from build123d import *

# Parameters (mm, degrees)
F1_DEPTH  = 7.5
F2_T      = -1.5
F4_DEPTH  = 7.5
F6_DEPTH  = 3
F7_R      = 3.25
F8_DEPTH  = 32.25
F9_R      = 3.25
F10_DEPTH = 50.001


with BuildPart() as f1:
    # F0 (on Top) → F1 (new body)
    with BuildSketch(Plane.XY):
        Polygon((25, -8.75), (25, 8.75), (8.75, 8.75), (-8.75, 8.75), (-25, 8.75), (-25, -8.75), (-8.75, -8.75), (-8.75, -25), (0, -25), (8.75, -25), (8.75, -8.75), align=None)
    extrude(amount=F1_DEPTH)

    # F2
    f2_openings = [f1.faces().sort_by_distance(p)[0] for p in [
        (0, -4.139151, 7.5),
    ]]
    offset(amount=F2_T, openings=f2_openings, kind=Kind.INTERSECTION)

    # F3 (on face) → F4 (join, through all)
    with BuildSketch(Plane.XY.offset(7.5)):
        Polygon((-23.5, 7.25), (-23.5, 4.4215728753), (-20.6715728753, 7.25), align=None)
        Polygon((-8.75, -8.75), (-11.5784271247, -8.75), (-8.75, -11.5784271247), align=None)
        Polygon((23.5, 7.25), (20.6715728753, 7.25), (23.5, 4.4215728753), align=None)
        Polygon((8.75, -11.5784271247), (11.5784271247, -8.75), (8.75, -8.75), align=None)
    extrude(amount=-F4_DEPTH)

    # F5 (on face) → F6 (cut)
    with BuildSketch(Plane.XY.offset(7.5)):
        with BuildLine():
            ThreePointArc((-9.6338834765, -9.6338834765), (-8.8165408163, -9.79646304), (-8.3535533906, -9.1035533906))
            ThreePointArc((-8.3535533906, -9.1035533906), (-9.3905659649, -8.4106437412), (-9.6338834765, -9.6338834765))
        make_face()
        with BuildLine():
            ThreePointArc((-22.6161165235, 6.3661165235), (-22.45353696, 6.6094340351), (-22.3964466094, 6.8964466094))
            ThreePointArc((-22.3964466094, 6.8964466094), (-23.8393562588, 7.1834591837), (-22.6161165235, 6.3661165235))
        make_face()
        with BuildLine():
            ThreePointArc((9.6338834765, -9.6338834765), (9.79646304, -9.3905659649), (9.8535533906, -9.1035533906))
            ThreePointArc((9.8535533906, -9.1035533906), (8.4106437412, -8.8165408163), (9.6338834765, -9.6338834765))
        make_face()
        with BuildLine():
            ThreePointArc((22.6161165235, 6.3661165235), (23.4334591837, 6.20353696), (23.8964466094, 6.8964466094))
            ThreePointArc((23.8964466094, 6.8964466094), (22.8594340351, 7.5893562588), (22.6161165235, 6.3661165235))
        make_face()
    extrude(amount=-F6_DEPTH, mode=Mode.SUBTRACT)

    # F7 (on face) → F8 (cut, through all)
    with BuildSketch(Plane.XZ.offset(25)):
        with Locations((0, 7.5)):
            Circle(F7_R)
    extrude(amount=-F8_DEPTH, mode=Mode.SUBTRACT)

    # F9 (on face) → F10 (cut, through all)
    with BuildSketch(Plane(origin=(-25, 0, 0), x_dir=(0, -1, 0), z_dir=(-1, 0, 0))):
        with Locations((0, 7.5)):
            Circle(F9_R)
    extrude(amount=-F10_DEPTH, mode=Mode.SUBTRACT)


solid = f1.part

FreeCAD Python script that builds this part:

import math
import FreeCAD as App
import Part
import Sketcher
from FreeCAD import Vector


def faces_at(feature, points):
    """Names of the faces that lie closest to the given points."""
    faces = feature.Shape.Faces
    near = lambda p: min(range(len(faces)), key=lambda i: faces[i].distToShape(Part.Vertex(*p))[0])
    return sorted({f"Face{near(p) + 1}" for p in points})

doc = App.newDocument("Part")
params = doc.addObject("Spreadsheet::Sheet", "Params")
for row, (alias, value) in enumerate([
    ("sketch1_width", "50 mm"),
    ("sketch1_width2", "17.5 mm"),
    ("pad1_length", "7.5 mm"),
    ("thickness_wall", "1.5 mm"),
    ("sketch2_length", "4 mm"),
    ("sketch3_radius", "0.75 mm"),
    ("pocket1_length", "3 mm"),
    ("sketch4_diameter", "6.5 mm"),
    ("pocket2_length", "32.25 mm"),
    ("sketch5_diameter", "6.5 mm"),
], start=1):
    params.set(f"A{row}", alias)
    params.set(f"B{row}", "=" + value)
    params.setAlias(f"B{row}", alias)

body = doc.addObject("PartDesign::Body", "Body")

sketch1 = body.newObject("Sketcher::SketchObject", "Sketch")
sketch1.AttachmentSupport = (doc.getObject("XY_Plane"), [""])
sketch1.MapMode = "FlatFace"
sketch1.addGeometry([
    Part.LineSegment(Vector(25, -9, 0), Vector(25, 9, 0)),
    Part.LineSegment(Vector(25, 9, 0), Vector(-25, 9, 0)),
    Part.LineSegment(Vector(-25, 9, 0), Vector(-25, -9, 0)),
    Part.LineSegment(Vector(-25, -9, 0), Vector(-9, -9, 0)),
    Part.LineSegment(Vector(-9, -9, 0), Vector(-9, -25, 0)),
    Part.LineSegment(Vector(-9, -25, 0), Vector(9, -25, 0)),
    Part.LineSegment(Vector(9, -25, 0), Vector(9, -9, 0)),
    Part.LineSegment(Vector(9, -9, 0), Vector(25, -9, 0)),
], False)
sketch1.addConstraint([
    Sketcher.Constraint("Coincident", 0, 2, 1, 1),
    Sketcher.Constraint("Coincident", 1, 2, 2, 1),
    Sketcher.Constraint("Coincident", 2, 2, 3, 1),
    Sketcher.Constraint("Coincident", 3, 2, 4, 1),
    Sketcher.Constraint("Coincident", 4, 2, 5, 1),
    Sketcher.Constraint("Coincident", 5, 2, 6, 1),
    Sketcher.Constraint("Coincident", 6, 2, 7, 1),
    Sketcher.Constraint("Coincident", 7, 2, 0, 1),
    Sketcher.Constraint("Vertical", 0),
    Sketcher.Constraint("Horizontal", 1),
    Sketcher.Constraint("Vertical", 2),
    Sketcher.Constraint("Horizontal", 3),
    Sketcher.Constraint("Vertical", 4),
    Sketcher.Constraint("Horizontal", 5),
    Sketcher.Constraint("Vertical", 6),
    Sketcher.Constraint("Horizontal", 7),
    Sketcher.Constraint("Symmetric", 0, 2, 2, 2, -1, 1),
    Sketcher.Constraint("Symmetric", 3, 2, 6, 2, -2),
    Sketcher.Constraint("Equal", 5, 0),
    Sketcher.Constraint("Equal", 7, 4),
    Sketcher.Constraint("DistanceX", 1, 2, 1, 1, 50.0),
    Sketcher.Constraint("DistanceX", 5, 1, 5, 2, 17.5),
])
sketch1.setExpression("Constraints[20]", "Params.sketch1_width")
sketch1.setExpression("Constraints[21]", "Params.sketch1_width2")
pad1 = body.newObject("PartDesign::Pad", "Pad")
pad1.Profile = sketch1
pad1.setExpression("Length", "Params.pad1_length")
doc.recompute()

thickness = body.newObject("PartDesign::Thickness", "Thickness")
thickness.Base = (pad1, faces_at(pad1, [(0, -8.125, 7.5)]))
thickness.setExpression("Value", "Params.thickness_wall")
thickness.Reversed = True
thickness.Join = "Intersection"

sketch2 = body.newObject("Sketcher::SketchObject", "Sketch001")
sketch2.AttachmentSupport = (doc.getObject("XY_Plane"), [""])
sketch2.MapMode = "FlatFace"
sketch2.AttachmentOffset = App.Placement(Vector(0, 0, 7.5), App.Rotation())
sketch2.addGeometry([
    Part.LineSegment(Vector(-23.5, 7.2, 0), Vector(-23.5, 4.4, 0)),
    Part.LineSegment(Vector(-23.5, 4.4, 0), Vector(-20.7, 7.2, 0)),
    Part.LineSegment(Vector(-20.7, 7.2, 0), Vector(-23.5, 7.2, 0)),
    Part.LineSegment(Vector(-8.8, -8.8, 0), Vector(-11.6, -8.8, 0)),
    Part.LineSegment(Vector(-11.6, -8.8, 0), Vector(-8.8, -11.6, 0)),
    Part.LineSegment(Vector(-8.8, -11.6, 0), Vector(-8.8, -8.8, 0)),
    Part.LineSegment(Vector(23.5, 7.2, 0), Vector(20.7, 7.2, 0)),
    Part.LineSegment(Vector(20.7, 7.2, 0), Vector(23.5, 4.4, 0)),
    Part.LineSegment(Vector(23.5, 4.4, 0), Vector(23.5, 7.2, 0)),
    Part.LineSegment(Vector(8.8, -11.6, 0), Vector(11.6, -8.8, 0)),
    Part.LineSegment(Vector(11.6, -8.8, 0), Vector(8.8, -8.8, 0)),
    Part.LineSegment(Vector(8.8, -8.8, 0), Vector(8.8, -11.6, 0)),
], False)
sketch2.addConstraint([
    Sketcher.Constraint("Coincident", 0, 2, 1, 1),
    Sketcher.Constraint("Coincident", 1, 2, 2, 1),
    Sketcher.Constraint("Coincident", 2, 2, 0, 1),
    Sketcher.Constraint("Coincident", 3, 2, 4, 1),
    Sketcher.Constraint("Coincident", 4, 2, 5, 1),
    Sketcher.Constraint("Coincident", 5, 2, 3, 1),
    Sketcher.Constraint("Coincident", 6, 2, 7, 1),
    Sketcher.Constraint("Coincident", 7, 2, 8, 1),
    Sketcher.Constraint("Coincident", 8, 2, 6, 1),
    Sketcher.Constraint("Coincident", 9, 2, 10, 1),
    Sketcher.Constraint("Coincident", 10, 2, 11, 1),
    Sketcher.Constraint("Coincident", 11, 2, 9, 1),
    Sketcher.Constraint("Vertical", 0),
    Sketcher.Constraint("Horizontal", 2),
    Sketcher.Constraint("Horizontal", 3),
    Sketcher.Constraint("Vertical", 5),
    Sketcher.Constraint("Horizontal", 6),
    Sketcher.Constraint("Vertical", 8),
    Sketcher.Constraint("Horizontal", 10),
    Sketcher.Constraint("Vertical", 11),
    Sketcher.Constraint("Symmetric", 1, 2, 6, 2, -2),
    Sketcher.Constraint("Symmetric", 0, 2, 7, 2, -2),
    Sketcher.Constraint("Symmetric", 3, 2, 9, 2, -2),
    Sketcher.Constraint("Symmetric", 4, 2, 11, 2, -2),
    Sketcher.Constraint("Perpendicular", 1, 4),
    Sketcher.Constraint("Parallel", 4, 7),
    Sketcher.Constraint("Equal", 2, 3),
    Sketcher.Constraint("Distance", 1, 4.0),
    Sketcher.Constraint("DistanceY", 3, 2, 1, 2, 16.0),
    Sketcher.Constraint("DistanceX", 0, 2, -1, 1, 23.5),
    Sketcher.Constraint("DistanceX", 5, 2, 10, 2, 17.5),
    Sketcher.Constraint("DistanceY", -1, 1, 1, 2, 7.25),
])
sketch2.setExpression("Constraints[27]", "Params.sketch2_length")
pad2 = body.newObject("PartDesign::Pad", "Pad001")
pad2.Profile = sketch2
pad2.Type = "UpToLast"
pad2.Reversed = True

sketch3 = body.newObject("Sketcher::SketchObject", "Sketch002")
sketch3.AttachmentSupport = (doc.getObject("XY_Plane"), [""])
sketch3.MapMode = "FlatFace"
sketch3.AttachmentOffset = App.Placement(Vector(0, 0, 7.5), App.Rotation())
sketch3.addGeometry([
    Part.ArcOfCircle(Part.Circle(Vector(-9.1, -9.1, 0), Vector(0, 0, 1), 0.8), math.radians(-135), math.radians(0)),
    Part.ArcOfCircle(Part.Circle(Vector(-9.1, -9.1, 0), Vector(0, 0, 1), 0.8), math.radians(0), math.radians(225)),
    Part.ArcOfCircle(Part.Circle(Vector(-23.1, 6.9, 0), Vector(0, 0, 1), 0.8), math.radians(-45), math.radians(0)),
    Part.ArcOfCircle(Part.Circle(Vector(-23.1, 6.9, 0), Vector(0, 0, 1), 0.8), math.radians(0), math.radians(315)),
    Part.ArcOfCircle(Part.Circle(Vector(9.1, -9.1, 0), Vector(0, 0, 1), 0.8), math.radians(-45), math.radians(0)),
    Part.ArcOfCircle(Part.Circle(Vector(9.1, -9.1, 0), Vector(0, 0, 1), 0.8), math.radians(0), math.radians(315)),
    Part.ArcOfCircle(Part.Circle(Vector(23.1, 6.9, 0), Vector(0, 0, 1), 0.8), math.radians(-135), math.radians(0)),
    Part.ArcOfCircle(Part.Circle(Vector(23.1, 6.9, 0), Vector(0, 0, 1), 0.8), math.radians(0), math.radians(225)),
], False)
sketch3.addConstraint([
    Sketcher.Constraint("Tangent", 0, 1, 1, 2),
    Sketcher.Constraint("Coincident", 1, 1, 0, 2),
    Sketcher.Constraint("Tangent", 2, 1, 3, 2),
    Sketcher.Constraint("Coincident", 3, 1, 2, 2),
    Sketcher.Constraint("Tangent", 4, 1, 5, 2),
    Sketcher.Constraint("Coincident", 5, 1, 4, 2),
    Sketcher.Constraint("Tangent", 6, 1, 7, 2),
    Sketcher.Constraint("Coincident", 7, 1, 6, 2),
    Sketcher.Constraint("Equal", 1, 2),
    Sketcher.Constraint("Equal", 3, 4),
    Sketcher.Constraint("Equal", 5, 6),
    Sketcher.Constraint("Symmetric", 0, 3, 4, 3, -2),
    Sketcher.Constraint("Symmetric", 2, 3, 6, 3, -2),
    Sketcher.Constraint("Horizontal", 5, 3, 1, 1),
    Sketcher.Constraint("Horizontal", 7, 3, 3, 1),
    Sketcher.Constraint("Horizontal", 0, 1, 4, 1),
    Sketcher.Constraint("Horizontal", 1, 1, 5, 1),
    Sketcher.Constraint("Horizontal", 2, 1, 6, 1),
    Sketcher.Constraint("Horizontal", 3, 1, 7, 1),
    Sketcher.Constraint("Radius", 0, 0.75),
    Sketcher.Constraint("DistanceY", 0, 3, 2, 3, 16.0),
    Sketcher.Constraint("DistanceY", 0, 1, 2, 1, 16.0),
    Sketcher.Constraint("DistanceX", 2, 3, 4, 3, 32.25),
    Sketcher.Constraint("DistanceX", 0, 1, 0, 3, 0.53033),
    Sketcher.Constraint("DistanceX", 0, 3, -1, 1, 9.103553),
    Sketcher.Constraint("DistanceY", 0, 3, -1, 1, 9.103553),
])
sketch3.setExpression("Constraints[19]", "Params.sketch3_radius")
pocket1 = body.newObject("PartDesign::Pocket", "Pocket")
pocket1.Profile = sketch3
pocket1.setExpression("Length", "Params.pocket1_length")

sketch4 = body.newObject("Sketcher::SketchObject", "Sketch003")
sketch4.AttachmentSupport = (doc.getObject("XZ_Plane"), [""])
sketch4.MapMode = "FlatFace"
sketch4.AttachmentOffset = App.Placement(Vector(0, 0, 25), App.Rotation())
sketch4.addGeometry(Part.Circle(Vector(0, 7.5, 0), Vector(0, 0, 1), 3.2), False)
sketch4.addConstraint([
    Sketcher.Constraint("PointOnObject", 0, 3, -2),
    Sketcher.Constraint("Diameter", 0, 6.5),
    Sketcher.Constraint("DistanceY", -1, 1, 0, 3, 7.5),
])
sketch4.setExpression("Constraints[1]", "Params.sketch4_diameter")
pocket2 = body.newObject("PartDesign::Pocket", "Pocket001")
pocket2.Profile = sketch4
pocket2.setExpression("Length", "Params.pocket2_length")

sketch5 = body.newObject("Sketcher::SketchObject", "Sketch004")
sketch5.AttachmentSupport = (doc.getObject("YZ_Plane"), [""])
sketch5.MapMode = "FlatFace"
sketch5.AttachmentOffset = App.Placement(Vector(0, 0, -25), App.Rotation())
sketch5.addGeometry(Part.Circle(Vector(0, 7.5, 0), Vector(0, 0, 1), 3.2), False)
sketch5.addConstraint([
    Sketcher.Constraint("PointOnObject", 0, 3, -2),
    Sketcher.Constraint("Diameter", 0, 6.5),
    Sketcher.Constraint("DistanceY", -1, 1, 0, 3, 7.5),
])
sketch5.setExpression("Constraints[1]", "Params.sketch5_diameter")
pocket3 = body.newObject("PartDesign::Pocket", "Pocket002")
pocket3.Profile = sketch5
pocket3.Type = "ThroughAll"
pocket3.Reversed = True

doc.recompute()
